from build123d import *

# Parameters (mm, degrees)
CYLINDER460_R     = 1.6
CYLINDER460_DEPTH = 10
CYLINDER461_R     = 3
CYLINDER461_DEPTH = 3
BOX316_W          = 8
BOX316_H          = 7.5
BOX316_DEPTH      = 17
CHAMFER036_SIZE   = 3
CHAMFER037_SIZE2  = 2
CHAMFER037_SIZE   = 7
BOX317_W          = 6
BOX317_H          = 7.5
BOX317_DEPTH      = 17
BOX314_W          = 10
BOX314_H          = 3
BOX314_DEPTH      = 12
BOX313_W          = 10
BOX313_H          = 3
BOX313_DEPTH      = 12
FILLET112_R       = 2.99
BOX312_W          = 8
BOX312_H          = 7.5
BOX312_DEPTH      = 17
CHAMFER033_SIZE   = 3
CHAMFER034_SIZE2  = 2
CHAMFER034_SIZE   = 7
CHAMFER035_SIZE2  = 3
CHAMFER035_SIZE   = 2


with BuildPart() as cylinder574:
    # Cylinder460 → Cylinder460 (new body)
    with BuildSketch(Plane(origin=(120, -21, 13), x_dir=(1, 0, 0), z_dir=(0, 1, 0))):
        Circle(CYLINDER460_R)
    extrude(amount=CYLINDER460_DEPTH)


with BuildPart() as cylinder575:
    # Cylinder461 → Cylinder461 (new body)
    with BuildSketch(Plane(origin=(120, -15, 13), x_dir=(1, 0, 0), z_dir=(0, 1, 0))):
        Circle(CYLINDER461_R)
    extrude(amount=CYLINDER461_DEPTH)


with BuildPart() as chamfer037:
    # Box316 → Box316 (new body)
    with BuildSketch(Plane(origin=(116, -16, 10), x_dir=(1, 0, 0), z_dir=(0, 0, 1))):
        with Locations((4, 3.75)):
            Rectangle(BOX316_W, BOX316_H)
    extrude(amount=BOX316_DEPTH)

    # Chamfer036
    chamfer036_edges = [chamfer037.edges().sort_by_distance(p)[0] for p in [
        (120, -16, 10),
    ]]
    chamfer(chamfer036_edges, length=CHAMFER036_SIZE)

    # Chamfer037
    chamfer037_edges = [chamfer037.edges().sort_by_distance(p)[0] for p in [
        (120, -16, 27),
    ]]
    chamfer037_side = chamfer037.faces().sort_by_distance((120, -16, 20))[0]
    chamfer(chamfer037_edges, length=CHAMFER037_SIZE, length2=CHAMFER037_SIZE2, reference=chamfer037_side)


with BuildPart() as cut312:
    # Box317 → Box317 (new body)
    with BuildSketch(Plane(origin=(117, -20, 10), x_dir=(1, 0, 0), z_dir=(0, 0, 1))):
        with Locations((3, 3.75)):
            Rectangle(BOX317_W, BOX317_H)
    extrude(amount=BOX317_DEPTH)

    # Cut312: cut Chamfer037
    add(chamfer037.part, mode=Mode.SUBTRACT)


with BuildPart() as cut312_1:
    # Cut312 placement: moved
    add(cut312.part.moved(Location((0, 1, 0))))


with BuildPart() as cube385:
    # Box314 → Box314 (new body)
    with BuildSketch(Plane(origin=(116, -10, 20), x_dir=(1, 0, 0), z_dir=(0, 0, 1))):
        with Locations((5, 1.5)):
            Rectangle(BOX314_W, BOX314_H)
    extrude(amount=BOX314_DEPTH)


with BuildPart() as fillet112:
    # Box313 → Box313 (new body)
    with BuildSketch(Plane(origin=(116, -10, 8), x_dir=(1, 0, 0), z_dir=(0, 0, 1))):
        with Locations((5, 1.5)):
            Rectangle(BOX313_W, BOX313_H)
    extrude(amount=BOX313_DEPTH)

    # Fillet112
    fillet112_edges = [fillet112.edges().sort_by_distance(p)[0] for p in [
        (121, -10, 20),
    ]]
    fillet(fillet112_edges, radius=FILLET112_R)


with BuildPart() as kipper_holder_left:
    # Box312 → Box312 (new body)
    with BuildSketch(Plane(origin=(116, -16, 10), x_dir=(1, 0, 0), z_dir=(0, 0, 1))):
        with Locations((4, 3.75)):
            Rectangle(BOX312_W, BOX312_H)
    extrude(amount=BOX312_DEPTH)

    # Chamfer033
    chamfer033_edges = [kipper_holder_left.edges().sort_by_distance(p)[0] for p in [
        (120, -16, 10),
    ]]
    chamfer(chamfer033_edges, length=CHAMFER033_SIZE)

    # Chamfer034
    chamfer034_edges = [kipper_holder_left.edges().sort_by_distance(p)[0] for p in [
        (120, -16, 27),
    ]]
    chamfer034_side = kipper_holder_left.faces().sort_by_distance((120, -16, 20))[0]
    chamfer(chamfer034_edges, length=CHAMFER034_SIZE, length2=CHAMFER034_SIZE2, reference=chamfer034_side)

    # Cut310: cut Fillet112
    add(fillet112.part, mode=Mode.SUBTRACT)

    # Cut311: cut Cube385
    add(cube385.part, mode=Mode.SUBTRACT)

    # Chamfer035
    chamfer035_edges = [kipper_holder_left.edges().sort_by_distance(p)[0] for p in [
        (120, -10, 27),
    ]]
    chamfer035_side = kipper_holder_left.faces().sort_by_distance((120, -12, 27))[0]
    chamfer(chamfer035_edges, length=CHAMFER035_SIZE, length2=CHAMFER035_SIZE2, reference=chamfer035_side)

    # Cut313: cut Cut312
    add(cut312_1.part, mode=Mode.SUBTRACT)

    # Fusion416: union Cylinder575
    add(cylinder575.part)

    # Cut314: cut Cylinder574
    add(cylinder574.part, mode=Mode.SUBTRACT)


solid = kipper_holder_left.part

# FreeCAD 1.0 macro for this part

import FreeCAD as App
import Part
import Sketcher

V = App.Vector


def edges_at(feature, points):
    """Names of the edges that pass closest to the given points."""
    edges = feature.Shape.Edges
    near = lambda p: min(range(len(edges)), key=lambda i: edges[i].distToShape(Part.Vertex(*p))[0])
    return sorted({f"Edge{near(p) + 1}" for p in points})

doc = App.newDocument("Part")
params = doc.addObject("Spreadsheet::Sheet", "Params")
for row, (alias, value) in enumerate([
    ("sketch1_diameter", "3.2 mm"),
    ("pad1_length", "10 mm"),
    ("sketch2_diameter", "6 mm"),
    ("pad2_length", "3 mm"),
    ("sketch3_width", "8 mm"),
    ("sketch3_height", "7.5 mm"),
    ("pad3_length", "17 mm"),
    ("chamfer_size", "3 mm"),
    ("chamfer2_size", "7 mm"),
    ("chamfer2_size2", "2 mm"),
    ("sketch4_width", "6 mm"),
    ("sketch4_height", "7.5 mm"),
    ("pad4_length", "17 mm"),
    ("sketch5_width", "10 mm"),
    ("sketch5_height", "3 mm"),
    ("pad5_length", "12 mm"),
    ("sketch6_width", "10 mm"),
    ("sketch6_height", "3 mm"),
    ("pad6_length", "12 mm"),
    ("fillet_radius", "2.99 mm"),
    ("sketch7_width", "8 mm"),
    ("sketch7_height", "7.5 mm"),
    ("pad7_length", "17 mm"),
    ("chamfer3_size", "3 mm"),
    ("chamfer4_size", "7 mm"),
    ("chamfer4_size2", "2 mm"),
    ("chamfer5_size", "2 mm"),
    ("chamfer5_size2", "3 mm"),
], start=1):
    params.set(f"A{row}", alias)
    params.set(f"B{row}", "=" + value)
    params.setAlias(f"B{row}", alias)

body = doc.addObject("PartDesign::Body", "Body")

# Sketch on XZ plane
sketch1 = body.newObject("Sketcher::SketchObject", "Sketch")
sketch1.AttachmentSupport = (doc.getObject("XZ_Plane"), [""])
sketch1.MapMode = "FlatFace"
sketch1.AttachmentOffset = App.Placement(V(0, 0, 21), App.Rotation())
sketch1.addGeometry(Part.Circle(V(120, 13, 0), V(0, 0, 1), 1.6), False)
sketch1.addConstraint([
    Sketcher.Constraint("Diameter", 0, 3.2),
    Sketcher.Constraint("DistanceX", -1, 1, 0, 3, 120.0),
    Sketcher.Constraint("DistanceY", -1, 1, 0, 3, 13.0),
])
sketch1.setExpression("Constraints[0]", "Params.sketch1_diameter")
pad1 = body.newObject("PartDesign::Pad", "Pad")
pad1.Profile = sketch1
pad1.setExpression("Length", "Params.pad1_length")
pad1.Reversed = True
body2 = doc.addObject("PartDesign::Body", "Body001")

# Sketch on XZ plane
sketch2 = body2.newObject("Sketcher::SketchObject", "Sketch001")
sketch2.AttachmentSupport = (doc.getObject("XZ_Plane001"), [""])
sketch2.MapMode = "FlatFace"
sketch2.AttachmentOffset = App.Placement(V(0, 0, 15), App.Rotation())
sketch2.addGeometry(Part.Circle(V(120, 13, 0), V(0, 0, 1), 3), False)
sketch2.addConstraint([
    Sketcher.Constraint("Diameter", 0, 6.0),
    Sketcher.Constraint("DistanceX", -1, 1, 0, 3, 120.0),
    Sketcher.Constraint("DistanceY", -1, 1, 0, 3, 13.0),
])
sketch2.setExpression("Constraints[0]", "Params.sketch2_diameter")
pad2 = body2.newObject("PartDesign::Pad", "Pad001")
pad2.Profile = sketch2
pad2.setExpression("Length", "Params.pad2_length")
pad2.Reversed = True
body3 = doc.addObject("PartDesign::Body", "Body002")

# Sketch on XY plane
sketch3 = body3.newObject("Sketcher::SketchObject", "Sketch002")
sketch3.AttachmentSupport = (doc.getObject("XY_Plane002"), [""])
sketch3.MapMode = "FlatFace"
sketch3.AttachmentOffset = App.Placement(V(0, 0, 10), App.Rotation())
sketch3.addGeometry([
    Part.LineSegment(V(116, -8, 0), V(116, -16, 0)),
    Part.LineSegment(V(116, -16, 0), V(124, -16, 0)),
    Part.LineSegment(V(124, -16, 0), V(124, -8, 0)),
    Part.LineSegment(V(124, -8, 0), V(116, -8, 0)),
], False)
sketch3.addConstraint([
    Sketcher.Constraint("Coincident", 0, 2, 1, 1),
    Sketcher.Constraint("Coincident", 1, 2, 2, 1),
    Sketcher.Constraint("Coincident", 2, 2, 3, 1),
    Sketcher.Constraint("Coincident", 3, 2, 0, 1),
    Sketcher.Constraint("Vertical", 0),
    Sketcher.Constraint("Horizontal", 1),
    Sketcher.Constraint("Vertical", 2),
    Sketcher.Constraint("Horizontal", 3),
    Sketcher.Constraint("DistanceX", 1, 1, 1, 2, 8.0),
    Sketcher.Constraint("DistanceY", 0, 2, 0, 1, 7.5),
    Sketcher.Constraint("DistanceX", -1, 1, 0, 2, 116.0),
    Sketcher.Constraint("DistanceY", 0, 2, -1, 1, 16.0),
])
sketch3.setExpression("Constraints[8]", "Params.sketch3_width")
sketch3.setExpression("Constraints[9]", "Params.sketch3_height")
pad3 = body3.newObject("PartDesign::Pad", "Pad002")
pad3.Profile = sketch3
pad3.setExpression("Length", "Params.pad3_length")
doc.recompute()

chamfer = body3.newObject("PartDesign::Chamfer", "Chamfer")
chamfer.Base = (pad3, edges_at(pad3, [(120, -16, 10)]))
chamfer.setExpression("Size", "Params.chamfer_size")
doc.recompute()

chamfer2 = body3.newObject("PartDesign::Chamfer", "Chamfer001")
chamfer2.Base = (chamfer, edges_at(chamfer, [(120, -16, 27)]))
chamfer2.ChamferType = "Two distances"
chamfer2.setExpression("Size", "Params.chamfer2_size")
chamfer2.setExpression("Size2", "Params.chamfer2_size2")
body4 = doc.addObject("PartDesign::Body", "Body003")

# Sketch on XY plane
sketch4 = body4.newObject("Sketcher::SketchObject", "Sketch003")
sketch4.AttachmentSupport = (doc.getObject("XY_Plane003"), [""])
sketch4.MapMode = "FlatFace"
sketch4.AttachmentOffset = App.Placement(V(0, 0, 10), App.Rotation())
sketch4.addGeometry([
    Part.LineSegment(V(117, -12, 0), V(117, -20, 0)),
    Part.LineSegment(V(117, -20, 0), V(123, -20, 0)),
    Part.LineSegment(V(123, -20, 0), V(123, -12, 0)),
    Part.LineSegment(V(123, -12, 0), V(117, -12, 0)),
], False)
sketch4.addConstraint([
    Sketcher.Constraint("Coincident", 0, 2, 1, 1),
    Sketcher.Constraint("Coincident", 1, 2, 2, 1),
    Sketcher.Constraint("Coincident", 2, 2, 3, 1),
    Sketcher.Constraint("Coincident", 3, 2, 0, 1),
    Sketcher.Constraint("Vertical", 0),
    Sketcher.Constraint("Horizontal", 1),
    Sketcher.Constraint("Vertical", 2),
    Sketcher.Constraint("Horizontal", 3),
    Sketcher.Constraint("DistanceX", 1, 1, 1, 2, 6.0),
    Sketcher.Constraint("DistanceY", 0, 2, 0, 1, 7.5),
    Sketcher.Constraint("DistanceX", -1, 1, 0, 2, 117.0),
    Sketcher.Constraint("DistanceY", 0, 2, -1, 1, 20.0),
])
sketch4.setExpression("Constraints[8]", "Params.sketch4_width")
sketch4.setExpression("Constraints[9]", "Params.sketch4_height")
pad4 = body4.newObject("PartDesign::Pad", "Pad003")
pad4.Profile = sketch4
pad4.setExpression("Length", "Params.pad4_length")
doc.recompute()

boolean = body4.newObject("PartDesign::Boolean", "Boolean")
boolean.Type = "Cut"
boolean.addObjects([body3])
body5 = doc.addObject("PartDesign::Body", "Body004")
doc.recompute()

body4.Placement = App.Placement(V(0, 1, 0), App.Rotation(V(0, 0, 1), 0))
boolean2 = body5.newObject("PartDesign::Boolean", "Boolean001")
boolean2.Type = "Fuse"
boolean2.addObjects([body4])
body6 = doc.addObject("PartDesign::Body", "Body005")

# Sketch on XY plane
sketch5 = body6.newObject("Sketcher::SketchObject", "Sketch004")
sketch5.AttachmentSupport = (doc.getObject("XY_Plane005"), [""])
sketch5.MapMode = "FlatFace"
sketch5.AttachmentOffset = App.Placement(V(0, 0, 20), App.Rotation())
sketch5.addGeometry([
    Part.LineSegment(V(116, -7, 0), V(116, -10, 0)),
    Part.LineSegment(V(116, -10, 0), V(126, -10, 0)),
    Part.LineSegment(V(126, -10, 0), V(126, -7, 0)),
    Part.LineSegment(V(126, -7, 0), V(116, -7, 0)),
], False)
sketch5.addConstraint([
    Sketcher.Constraint("Coincident", 0, 2, 1, 1),
    Sketcher.Constraint("Coincident", 1, 2, 2, 1),
    Sketcher.Constraint("Coincident", 2, 2, 3, 1),
    Sketcher.Constraint("Coincident", 3, 2, 0, 1),
    Sketcher.Constraint("Vertical", 0),
    Sketcher.Constraint("Horizontal", 1),
    Sketcher.Constraint("Vertical", 2),
    Sketcher.Constraint("Horizontal", 3),
    Sketcher.Constraint("DistanceX", 1, 1, 1, 2, 10.0),
    Sketcher.Constraint("DistanceY", 0, 2, 0, 1, 3.0),
    Sketcher.Constraint("DistanceX", -1, 1, 0, 2, 116.0),
    Sketcher.Constraint("DistanceY", 0, 2, -1, 1, 10.0),
])
sketch5.setExpression("Constraints[8]", "Params.sketch5_width")
sketch5.setExpression("Constraints[9]", "Params.sketch5_height")
pad5 = body6.newObject("PartDesign::Pad", "Pad004")
pad5.Profile = sketch5
pad5.setExpression("Length", "Params.pad5_length")
body7 = doc.addObject("PartDesign::Body", "Body006")

# Sketch on XY plane
sketch6 = body7.newObject("Sketcher::SketchObject", "Sketch005")
sketch6.AttachmentSupport = (doc.getObject("XY_Plane006"), [""])
sketch6.MapMode = "FlatFace"
sketch6.AttachmentOffset = App.Placement(V(0, 0, 8), App.Rotation())
sketch6.addGeometry([
    Part.LineSegment(V(116, -7, 0), V(116, -10, 0)),
    Part.LineSegment(V(116, -10, 0), V(126, -10, 0)),
    Part.LineSegment(V(126, -10, 0), V(126, -7, 0)),
    Part.LineSegment(V(126, -7, 0), V(116, -7, 0)),
], False)
sketch6.addConstraint([
    Sketcher.Constraint("Coincident", 0, 2, 1, 1),
    Sketcher.Constraint("Coincident", 1, 2, 2, 1),
    Sketcher.Constraint("Coincident", 2, 2, 3, 1),
    Sketcher.Constraint("Coincident", 3, 2, 0, 1),
    Sketcher.Constraint("Vertical", 0),
    Sketcher.Constraint("Horizontal", 1),
    Sketcher.Constraint("Vertical", 2),
    Sketcher.Constraint("Horizontal", 3),
    Sketcher.Constraint("DistanceX", 1, 1, 1, 2, 10.0),
    Sketcher.Constraint("DistanceY", 0, 2, 0, 1, 3.0),
    Sketcher.Constraint("DistanceX", -1, 1, 0, 2, 116.0),
    Sketcher.Constraint("DistanceY", 0, 2, -1, 1, 10.0),
])
sketch6.setExpression("Constraints[8]", "Params.sketch6_width")
sketch6.setExpression("Constraints[9]", "Params.sketch6_height")
pad6 = body7.newObject("PartDesign::Pad", "Pad005")
pad6.Profile = sketch6
pad6.setExpression("Length", "Params.pad6_length")
doc.recompute()

fillet = body7.newObject("PartDesign::Fillet", "Fillet")
fillet.Base = (pad6, edges_at(pad6, [(121, -10, 20)]))
fillet.setExpression("Radius", "Params.fillet_radius")
body8 = doc.addObject("PartDesign::Body", "Body007")

# Sketch on XY plane
sketch7 = body8.newObject("Sketcher::SketchObject", "Sketch006")
sketch7.AttachmentSupport = (doc.getObject("XY_Plane007"), [""])
sketch7.MapMode = "FlatFace"
sketch7.AttachmentOffset = App.Placement(V(0, 0, 10), App.Rotation())
sketch7.addGeometry([
    Part.LineSegment(V(116, -8, 0), V(116, -16, 0)),
    Part.LineSegment(V(116, -16, 0), V(124, -16, 0)),
    Part.LineSegment(V(124, -16, 0), V(124, -8, 0)),
    Part.LineSegment(V(124, -8, 0), V(116, -8, 0)),
], False)
sketch7.addConstraint([
    Sketcher.Constraint("Coincident", 0, 2, 1, 1),
    Sketcher.Constraint("Coincident", 1, 2, 2, 1),
    Sketcher.Constraint("Coincident", 2, 2, 3, 1),
    Sketcher.Constraint("Coincident", 3, 2, 0, 1),
    Sketcher.Constraint("Vertical", 0),
    Sketcher.Constraint("Horizontal", 1),
    Sketcher.Constraint("Vertical", 2),
    Sketcher.Constraint("Horizontal", 3),
    Sketcher.Constraint("DistanceX", 1, 1, 1, 2, 8.0),
    Sketcher.Constraint("DistanceY", 0, 2, 0, 1, 7.5),
    Sketcher.Constraint("DistanceX", -1, 1, 0, 2, 116.0),
    Sketcher.Constraint("DistanceY", 0, 2, -1, 1, 16.0),
])
sketch7.setExpression("Constraints[8]", "Params.sketch7_width")
sketch7.setExpression("Constraints[9]", "Params.sketch7_height")
pad7 = body8.newObject("PartDesign::Pad", "Pad006")
pad7.Profile = sketch7
pad7.setExpression("Length", "Params.pad7_length")
doc.recompute()

chamfer3 = body8.newObject("PartDesign::Chamfer", "Chamfer002")
chamfer3.Base = (pad7, edges_at(pad7, [(120, -16, 10)]))
chamfer3.setExpression("Size", "Params.chamfer3_size")
doc.recompute()

chamfer4 = body8.newObject("PartDesign::Chamfer", "Chamfer003")
chamfer4.Base = (chamfer3, edges_at(chamfer3, [(120, -16, 27)]))
chamfer4.ChamferType = "Two distances"
chamfer4.setExpression("Size", "Params.chamfer4_size")
chamfer4.setExpression("Size2", "Params.chamfer4_size2")
doc.recompute()

boolean3 = body8.newObject("PartDesign::Boolean", "Boolean002")
boolean3.Type = "Cut"
boolean3.addObjects([body7])
doc.recompute()

boolean4 = body8.newObject("PartDesign::Boolean", "Boolean003")
boolean4.Type = "Cut"
boolean4.addObjects([body6])
doc.recompute()

chamfer5 = body8.newObject("PartDesign::Chamfer", "Chamfer004")
chamfer5.Base = (boolean4, edges_at(boolean4, [(120, -10, 27)]))
chamfer5.ChamferType = "Two distances"
chamfer5.setExpression("Size", "Params.chamfer5_size")
chamfer5.setExpression("Size2", "Params.chamfer5_size2")
doc.recompute()

boolean5 = body8.newObject("PartDesign::Boolean", "Boolean004")
boolean5.Type = "Cut"
boolean5.addObjects([body5])
doc.recompute()

boolean6 = body8.newObject("PartDesign::Boolean", "Boolean005")
boolean6.Type = "Fuse"
boolean6.addObjects([body2])
doc.recompute()

boolean7 = body8.newObject("PartDesign::Boolean", "Boolean006")
boolean7.Type = "Cut"
boolean7.addObjects([body])

doc.recompute()
